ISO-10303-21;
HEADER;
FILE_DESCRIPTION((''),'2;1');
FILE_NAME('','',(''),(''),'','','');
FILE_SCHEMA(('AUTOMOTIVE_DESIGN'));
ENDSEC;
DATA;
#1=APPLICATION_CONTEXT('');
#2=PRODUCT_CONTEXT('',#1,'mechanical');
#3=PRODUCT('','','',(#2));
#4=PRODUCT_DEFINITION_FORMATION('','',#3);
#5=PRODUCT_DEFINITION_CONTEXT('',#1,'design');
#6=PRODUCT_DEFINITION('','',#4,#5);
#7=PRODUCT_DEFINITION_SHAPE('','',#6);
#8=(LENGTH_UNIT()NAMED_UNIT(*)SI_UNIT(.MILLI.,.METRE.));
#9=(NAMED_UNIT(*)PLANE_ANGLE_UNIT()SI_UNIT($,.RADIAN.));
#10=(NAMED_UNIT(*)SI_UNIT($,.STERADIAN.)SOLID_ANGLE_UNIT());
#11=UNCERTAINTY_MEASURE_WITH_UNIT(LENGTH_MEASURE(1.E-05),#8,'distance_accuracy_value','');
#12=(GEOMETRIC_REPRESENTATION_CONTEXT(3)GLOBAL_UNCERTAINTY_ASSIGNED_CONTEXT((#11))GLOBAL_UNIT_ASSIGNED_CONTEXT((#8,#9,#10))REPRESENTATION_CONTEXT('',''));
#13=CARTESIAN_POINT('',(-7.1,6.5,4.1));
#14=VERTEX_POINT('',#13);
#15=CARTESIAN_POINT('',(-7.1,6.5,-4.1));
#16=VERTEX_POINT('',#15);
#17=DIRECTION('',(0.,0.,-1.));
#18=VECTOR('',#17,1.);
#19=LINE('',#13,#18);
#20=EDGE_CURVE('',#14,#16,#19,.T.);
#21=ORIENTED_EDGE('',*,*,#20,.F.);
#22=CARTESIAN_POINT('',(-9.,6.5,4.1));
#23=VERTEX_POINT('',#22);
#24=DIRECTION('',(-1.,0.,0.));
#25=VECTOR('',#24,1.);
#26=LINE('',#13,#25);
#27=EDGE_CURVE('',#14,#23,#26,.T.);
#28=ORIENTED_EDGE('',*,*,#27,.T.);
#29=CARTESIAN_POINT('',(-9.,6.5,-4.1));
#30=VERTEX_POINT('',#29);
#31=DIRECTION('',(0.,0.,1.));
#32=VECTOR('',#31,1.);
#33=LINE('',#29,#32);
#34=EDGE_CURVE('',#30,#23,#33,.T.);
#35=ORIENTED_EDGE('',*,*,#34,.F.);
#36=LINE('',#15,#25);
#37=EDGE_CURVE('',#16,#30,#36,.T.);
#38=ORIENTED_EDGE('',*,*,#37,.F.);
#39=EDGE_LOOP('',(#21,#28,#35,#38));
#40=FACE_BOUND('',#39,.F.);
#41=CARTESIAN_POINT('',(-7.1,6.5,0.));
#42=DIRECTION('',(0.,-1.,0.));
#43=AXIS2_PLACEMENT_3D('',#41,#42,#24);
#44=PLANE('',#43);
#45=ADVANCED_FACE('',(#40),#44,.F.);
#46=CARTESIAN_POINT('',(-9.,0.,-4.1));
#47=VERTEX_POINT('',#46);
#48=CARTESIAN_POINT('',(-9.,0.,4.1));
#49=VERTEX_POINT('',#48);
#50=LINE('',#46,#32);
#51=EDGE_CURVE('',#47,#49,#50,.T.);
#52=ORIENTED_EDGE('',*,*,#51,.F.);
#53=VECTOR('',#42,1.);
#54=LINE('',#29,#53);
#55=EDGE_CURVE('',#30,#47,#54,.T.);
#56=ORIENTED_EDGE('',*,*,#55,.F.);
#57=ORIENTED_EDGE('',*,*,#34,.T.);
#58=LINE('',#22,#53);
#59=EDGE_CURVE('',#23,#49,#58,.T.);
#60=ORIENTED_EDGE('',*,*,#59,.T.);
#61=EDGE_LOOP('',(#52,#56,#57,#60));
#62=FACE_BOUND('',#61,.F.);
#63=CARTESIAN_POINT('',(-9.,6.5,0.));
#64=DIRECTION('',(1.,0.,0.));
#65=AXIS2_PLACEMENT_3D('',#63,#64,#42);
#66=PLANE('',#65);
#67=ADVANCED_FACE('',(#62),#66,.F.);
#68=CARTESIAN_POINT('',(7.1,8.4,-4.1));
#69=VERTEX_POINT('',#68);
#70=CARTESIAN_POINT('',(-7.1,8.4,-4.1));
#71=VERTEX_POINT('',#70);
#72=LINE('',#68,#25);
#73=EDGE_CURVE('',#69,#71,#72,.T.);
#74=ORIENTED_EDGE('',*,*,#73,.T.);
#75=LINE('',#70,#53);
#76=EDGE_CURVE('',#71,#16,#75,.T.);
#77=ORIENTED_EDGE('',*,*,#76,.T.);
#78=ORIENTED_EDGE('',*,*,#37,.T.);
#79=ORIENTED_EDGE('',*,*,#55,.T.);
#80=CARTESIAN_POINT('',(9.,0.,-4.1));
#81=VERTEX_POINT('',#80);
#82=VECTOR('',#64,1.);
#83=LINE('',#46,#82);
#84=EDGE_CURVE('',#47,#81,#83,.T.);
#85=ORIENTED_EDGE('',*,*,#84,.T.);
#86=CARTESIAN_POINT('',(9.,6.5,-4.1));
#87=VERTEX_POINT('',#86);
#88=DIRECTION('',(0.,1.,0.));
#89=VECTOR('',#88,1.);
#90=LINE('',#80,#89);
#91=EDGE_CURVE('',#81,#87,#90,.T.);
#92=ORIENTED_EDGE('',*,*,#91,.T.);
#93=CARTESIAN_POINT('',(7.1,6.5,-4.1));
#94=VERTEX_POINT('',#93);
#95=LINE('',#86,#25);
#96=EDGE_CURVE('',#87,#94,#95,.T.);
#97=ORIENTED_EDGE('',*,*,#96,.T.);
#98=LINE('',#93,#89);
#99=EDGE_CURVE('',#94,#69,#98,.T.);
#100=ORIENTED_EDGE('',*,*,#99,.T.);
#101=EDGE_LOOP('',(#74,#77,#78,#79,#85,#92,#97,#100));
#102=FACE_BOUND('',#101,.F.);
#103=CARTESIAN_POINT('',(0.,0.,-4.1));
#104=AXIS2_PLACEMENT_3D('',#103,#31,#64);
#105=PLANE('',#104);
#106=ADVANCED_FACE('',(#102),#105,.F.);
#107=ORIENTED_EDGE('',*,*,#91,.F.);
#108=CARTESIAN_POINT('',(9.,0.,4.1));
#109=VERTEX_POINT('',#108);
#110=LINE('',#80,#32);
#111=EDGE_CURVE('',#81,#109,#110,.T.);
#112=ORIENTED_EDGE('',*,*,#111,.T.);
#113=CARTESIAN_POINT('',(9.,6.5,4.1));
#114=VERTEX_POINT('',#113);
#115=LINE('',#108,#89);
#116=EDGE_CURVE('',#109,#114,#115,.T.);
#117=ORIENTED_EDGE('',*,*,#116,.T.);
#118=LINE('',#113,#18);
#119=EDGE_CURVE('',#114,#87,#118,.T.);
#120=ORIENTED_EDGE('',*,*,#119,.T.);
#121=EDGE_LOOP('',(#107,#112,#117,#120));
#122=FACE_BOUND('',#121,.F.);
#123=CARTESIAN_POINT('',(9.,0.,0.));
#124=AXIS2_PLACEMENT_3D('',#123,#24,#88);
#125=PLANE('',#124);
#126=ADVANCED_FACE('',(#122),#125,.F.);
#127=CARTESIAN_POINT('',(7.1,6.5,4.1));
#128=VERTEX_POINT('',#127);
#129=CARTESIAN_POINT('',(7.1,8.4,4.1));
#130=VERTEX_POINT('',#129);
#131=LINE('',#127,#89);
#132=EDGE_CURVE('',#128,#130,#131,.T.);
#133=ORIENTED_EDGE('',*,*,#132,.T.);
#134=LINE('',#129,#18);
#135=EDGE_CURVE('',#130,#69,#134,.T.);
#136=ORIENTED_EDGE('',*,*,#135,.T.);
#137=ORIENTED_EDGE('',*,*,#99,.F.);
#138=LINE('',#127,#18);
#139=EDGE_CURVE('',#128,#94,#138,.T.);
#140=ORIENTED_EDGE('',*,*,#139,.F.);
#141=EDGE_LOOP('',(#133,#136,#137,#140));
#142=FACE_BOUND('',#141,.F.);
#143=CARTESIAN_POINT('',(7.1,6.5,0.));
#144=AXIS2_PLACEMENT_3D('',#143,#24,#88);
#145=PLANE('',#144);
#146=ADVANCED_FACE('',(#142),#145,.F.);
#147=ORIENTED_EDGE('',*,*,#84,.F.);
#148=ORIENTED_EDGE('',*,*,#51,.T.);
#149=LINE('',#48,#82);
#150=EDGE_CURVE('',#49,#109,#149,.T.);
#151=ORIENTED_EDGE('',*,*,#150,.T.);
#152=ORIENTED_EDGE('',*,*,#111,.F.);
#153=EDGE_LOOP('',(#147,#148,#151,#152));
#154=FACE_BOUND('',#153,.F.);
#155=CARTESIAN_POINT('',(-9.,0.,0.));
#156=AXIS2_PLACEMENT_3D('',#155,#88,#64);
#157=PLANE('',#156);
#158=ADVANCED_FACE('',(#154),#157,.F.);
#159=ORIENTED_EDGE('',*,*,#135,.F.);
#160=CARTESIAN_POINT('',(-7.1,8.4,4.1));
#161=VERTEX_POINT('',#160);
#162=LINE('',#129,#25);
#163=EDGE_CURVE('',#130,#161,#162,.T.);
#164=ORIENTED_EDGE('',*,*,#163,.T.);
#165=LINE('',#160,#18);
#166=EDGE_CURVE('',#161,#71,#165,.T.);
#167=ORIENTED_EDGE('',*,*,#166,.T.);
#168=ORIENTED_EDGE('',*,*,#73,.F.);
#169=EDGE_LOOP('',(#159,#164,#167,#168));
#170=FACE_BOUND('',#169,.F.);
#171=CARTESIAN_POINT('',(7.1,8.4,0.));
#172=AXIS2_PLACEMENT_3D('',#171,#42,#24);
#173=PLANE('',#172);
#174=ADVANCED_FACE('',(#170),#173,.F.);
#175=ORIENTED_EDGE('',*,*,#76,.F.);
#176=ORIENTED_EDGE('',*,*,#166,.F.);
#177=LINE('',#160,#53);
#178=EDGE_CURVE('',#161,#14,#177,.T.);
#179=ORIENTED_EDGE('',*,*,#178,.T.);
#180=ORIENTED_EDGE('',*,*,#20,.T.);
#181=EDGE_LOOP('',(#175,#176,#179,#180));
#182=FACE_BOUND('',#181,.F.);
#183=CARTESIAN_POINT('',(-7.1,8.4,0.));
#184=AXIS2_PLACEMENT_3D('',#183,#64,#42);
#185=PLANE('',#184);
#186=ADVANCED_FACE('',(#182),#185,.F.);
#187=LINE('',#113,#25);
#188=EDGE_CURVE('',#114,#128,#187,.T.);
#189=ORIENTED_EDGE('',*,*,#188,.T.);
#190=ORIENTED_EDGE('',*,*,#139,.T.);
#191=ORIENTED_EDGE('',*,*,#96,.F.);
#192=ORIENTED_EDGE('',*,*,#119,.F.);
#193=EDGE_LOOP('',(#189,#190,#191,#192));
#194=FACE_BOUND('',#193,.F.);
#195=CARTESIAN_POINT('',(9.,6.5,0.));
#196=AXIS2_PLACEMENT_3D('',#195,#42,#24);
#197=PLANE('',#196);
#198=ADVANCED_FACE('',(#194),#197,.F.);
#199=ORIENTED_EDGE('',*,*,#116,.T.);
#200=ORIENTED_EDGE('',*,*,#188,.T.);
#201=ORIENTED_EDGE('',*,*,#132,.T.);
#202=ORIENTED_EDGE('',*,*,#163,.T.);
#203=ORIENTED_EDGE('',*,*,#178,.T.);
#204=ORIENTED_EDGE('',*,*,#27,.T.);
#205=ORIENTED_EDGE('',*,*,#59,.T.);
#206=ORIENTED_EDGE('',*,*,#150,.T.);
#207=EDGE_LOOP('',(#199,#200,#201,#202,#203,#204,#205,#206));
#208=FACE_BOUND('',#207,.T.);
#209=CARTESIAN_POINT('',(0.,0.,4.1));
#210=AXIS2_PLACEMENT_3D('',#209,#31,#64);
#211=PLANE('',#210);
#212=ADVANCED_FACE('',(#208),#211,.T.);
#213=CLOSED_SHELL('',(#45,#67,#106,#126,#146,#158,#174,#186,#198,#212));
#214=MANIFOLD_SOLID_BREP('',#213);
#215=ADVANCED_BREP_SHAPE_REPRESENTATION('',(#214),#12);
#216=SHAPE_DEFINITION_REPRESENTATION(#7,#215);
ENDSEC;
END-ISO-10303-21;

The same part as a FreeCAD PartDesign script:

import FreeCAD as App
import Part
import Sketcher
from FreeCAD import Vector
Q = App.Units.Quantity

doc = App.newDocument("Part")
body = doc.addObject("PartDesign::Body", "Body")

# Sketch on XY plane
sketch1 = body.newObject("Sketcher::SketchObject", "Sketch")
sketch1.AttachmentSupport = (doc.getObject("XY_Plane"), [""])
sketch1.MapMode = "FlatFace"
sketch1.addGeometry(Part.LineSegment(Vector(-7.1, 6.5, 0), Vector(-9, 6.5, 0)), False)
sketch1.addGeometry(Part.LineSegment(Vector(-9, 6.5, 0), Vector(-9, 0, 0)), False)
sketch1.addGeometry(Part.LineSegment(Vector(-9, 0, 0), Vector(9, 0, 0)), False)
sketch1.addGeometry(Part.LineSegment(Vector(9, 0, 0), Vector(9, 6.5, 0)), False)
sketch1.addGeometry(Part.LineSegment(Vector(9, 6.5, 0), Vector(7.1, 6.5, 0)), False)
sketch1.addGeometry(Part.LineSegment(Vector(7.1, 6.5, 0), Vector(7.1, 8.4, 0)), False)
sketch1.addGeometry(Part.LineSegment(Vector(7.1, 8.4, 0), Vector(-7.1, 8.4, 0)), False)
sketch1.addGeometry(Part.LineSegment(Vector(-7.1, 8.4, 0), Vector(-7.1, 6.5, 0)), False)
sketch1.addConstraint(Sketcher.Constraint("Coincident", 0, 2, 1, 1))
sketch1.addConstraint(Sketcher.Constraint("Coincident", 1, 2, 2, 1))
sketch1.addConstraint(Sketcher.Constraint("Coincident", 2, 2, 3, 1))
sketch1.addConstraint(Sketcher.Constraint("Coincident", 3, 2, 4, 1))
sketch1.addConstraint(Sketcher.Constraint("Coincident", 4, 2, 5, 1))
sketch1.addConstraint(Sketcher.Constraint("Coincident", 5, 2, 6, 1))
sketch1.addConstraint(Sketcher.Constraint("Coincident", 6, 2, 7, 1))
sketch1.addConstraint(Sketcher.Constraint("Coincident", 7, 2, 0, 1))
sketch1.addConstraint(Sketcher.Constraint("Horizontal", 0))
sketch1.addConstraint(Sketcher.Constraint("Vertical", 1))
sketch1.addConstraint(Sketcher.Constraint("Horizontal", 2))
sketch1.addConstraint(Sketcher.Constraint("Vertical", 3))
sketch1.addConstraint(Sketcher.Constraint("Horizontal", 4))
sketch1.addConstraint(Sketcher.Constraint("Vertical", 5))
sketch1.addConstraint(Sketcher.Constraint("Horizontal", 6))
sketch1.addConstraint(Sketcher.Constraint("Vertical", 7))
sketch1.addConstraint(Sketcher.Constraint("Symmetric", 1, 2, 2, 2, -1, 1))
sketch1.addConstraint(Sketcher.Constraint("Symmetric", 4, 2, 7, 2, -2))
sketch1.addConstraint(Sketcher.Constraint("Equal", 4, 5))
sketch1.addConstraint(Sketcher.Constraint("DistanceX", 2, 1, 2, 2, Q("18 mm")))
sketch1.addConstraint(Sketcher.Constraint("DistanceX", 0, 2, 0, 1, Q("1.9 mm")))
sketch1.addConstraint(Sketcher.Constraint("DistanceY", 1, 2, 1, 1, Q("6.5 mm")))
pad1 = body.newObject("PartDesign::Pad", "Pad")
pad1.Profile = sketch1
pad1.Length = 8.2
pad1.Midplane = True

doc.recompute()
